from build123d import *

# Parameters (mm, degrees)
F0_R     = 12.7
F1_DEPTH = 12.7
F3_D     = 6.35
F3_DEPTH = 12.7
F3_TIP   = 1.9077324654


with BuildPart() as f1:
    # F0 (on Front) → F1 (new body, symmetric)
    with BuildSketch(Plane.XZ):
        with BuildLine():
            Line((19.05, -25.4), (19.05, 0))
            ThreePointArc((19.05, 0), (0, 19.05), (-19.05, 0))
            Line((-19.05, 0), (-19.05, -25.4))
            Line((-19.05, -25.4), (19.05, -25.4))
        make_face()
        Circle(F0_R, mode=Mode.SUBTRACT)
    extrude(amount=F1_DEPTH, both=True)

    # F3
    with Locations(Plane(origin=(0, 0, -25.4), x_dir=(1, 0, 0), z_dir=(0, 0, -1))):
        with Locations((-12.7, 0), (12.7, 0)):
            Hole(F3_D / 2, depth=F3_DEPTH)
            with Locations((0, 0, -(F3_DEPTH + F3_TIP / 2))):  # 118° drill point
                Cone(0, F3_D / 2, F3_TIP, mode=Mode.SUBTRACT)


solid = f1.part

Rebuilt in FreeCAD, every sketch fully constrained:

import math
import FreeCAD as App
import Part
import Sketcher

V = App.Vector
Q = App.Units.Quantity

doc = App.newDocument("Part")
body = doc.addObject("PartDesign::Body", "Body")

# Sketch on XZ plane
sketch1 = doc.addObject("Sketcher::SketchObject", "Sketch")
body.addObject(sketch1)
sketch1.AttachmentSupport = (doc.XZ_Plane, [""])
sketch1.MapMode = "FlatFace"
sketch1.addGeometry(Part.LineSegment(V(19, -25, 0), V(19, 0, 0)), False)
sketch1.addGeometry(Part.ArcOfCircle(Part.Circle(V(0, 0, 0), V(0, 0, 1), 19), math.radians(0), math.radians(180)), False)
sketch1.addGeometry(Part.LineSegment(V(-19, 0, 0), V(-19, -25, 0)), False)
sketch1.addGeometry(Part.LineSegment(V(-19, -25, 0), V(19, -25, 0)), False)
sketch1.addGeometry(Part.Circle(V(0, 0, 0), V(0, 0, 1), 13), False)
sketch1.addConstraint(Sketcher.Constraint("Tangent", 0, 2, 1, 1))
sketch1.addConstraint(Sketcher.Constraint("Tangent", 1, 2, 2, 1))
sketch1.addConstraint(Sketcher.Constraint("Coincident", 2, 2, 3, 1))
sketch1.addConstraint(Sketcher.Constraint("Coincident", 3, 2, 0, 1))
sketch1.addConstraint(Sketcher.Constraint("Vertical", 0))
sketch1.addConstraint(Sketcher.Constraint("Vertical", 2))
sketch1.addConstraint(Sketcher.Constraint("Horizontal", 3))
sketch1.addConstraint(Sketcher.Constraint("Coincident", 1, 3, -1, 1))
sketch1.addConstraint(Sketcher.Constraint("Coincident", 4, 3, -1, 1))
sketch1.addConstraint(Sketcher.Constraint("Diameter", 4, Q("1 in")))
sketch1.addConstraint(Sketcher.Constraint("DistanceY", 0, 1, 0, 2, Q("1 in")))
sketch1.addConstraint(Sketcher.Constraint("Radius", 1, Q("0.75 in")))
pad1 = doc.addObject("PartDesign::Pad", "Pad")
body.addObject(pad1)
pad1.Profile = sketch1
pad1.Length = Q("1 in")
pad1.Midplane = True

# Sketch on XY plane
sketch2 = doc.addObject("Sketcher::SketchObject", "Sketch001")
body.addObject(sketch2)
sketch2.AttachmentSupport = (doc.XY_Plane, [""])
sketch2.MapMode = "FlatFace"
sketch2.AttachmentOffset = App.Placement(V(0, 0, -1 * 25.4), App.Rotation())
sketch2.addGeometry(Part.Circle(V(-12.7, 0, 0), V(0, 0, 1), 3.2), False)
sketch2.addGeometry(Part.Circle(V(12.7, 0, 0), V(0, 0, 1), 3.2), False)
sketch2.addConstraint(Sketcher.Constraint("Equal", 0, 1))
sketch2.addConstraint(Sketcher.Constraint("Symmetric", 0, 3, 1, 3, -1, 1))
sketch2.addConstraint(Sketcher.Constraint("PointOnObject", 0, 3, -1))
sketch2.addConstraint(Sketcher.Constraint("Diameter", 0, Q("0.25 in")))
sketch2.addConstraint(Sketcher.Constraint("DistanceX", 0, 3, 1, 3, Q("1 in")))
doc.recompute()
hole = doc.addObject("PartDesign::Hole", "Hole")
body.addObject(hole)
hole.Profile = sketch2
hole.ThreadType = "None"
hole.Diameter = Q("0.25 in")
hole.DepthType = "Dimension"
hole.Depth = Q("0.5 in")
hole.DrillPoint = "Angled"
hole.DrillPointAngle = 118
hole.Reversed = True

doc.recompute()
